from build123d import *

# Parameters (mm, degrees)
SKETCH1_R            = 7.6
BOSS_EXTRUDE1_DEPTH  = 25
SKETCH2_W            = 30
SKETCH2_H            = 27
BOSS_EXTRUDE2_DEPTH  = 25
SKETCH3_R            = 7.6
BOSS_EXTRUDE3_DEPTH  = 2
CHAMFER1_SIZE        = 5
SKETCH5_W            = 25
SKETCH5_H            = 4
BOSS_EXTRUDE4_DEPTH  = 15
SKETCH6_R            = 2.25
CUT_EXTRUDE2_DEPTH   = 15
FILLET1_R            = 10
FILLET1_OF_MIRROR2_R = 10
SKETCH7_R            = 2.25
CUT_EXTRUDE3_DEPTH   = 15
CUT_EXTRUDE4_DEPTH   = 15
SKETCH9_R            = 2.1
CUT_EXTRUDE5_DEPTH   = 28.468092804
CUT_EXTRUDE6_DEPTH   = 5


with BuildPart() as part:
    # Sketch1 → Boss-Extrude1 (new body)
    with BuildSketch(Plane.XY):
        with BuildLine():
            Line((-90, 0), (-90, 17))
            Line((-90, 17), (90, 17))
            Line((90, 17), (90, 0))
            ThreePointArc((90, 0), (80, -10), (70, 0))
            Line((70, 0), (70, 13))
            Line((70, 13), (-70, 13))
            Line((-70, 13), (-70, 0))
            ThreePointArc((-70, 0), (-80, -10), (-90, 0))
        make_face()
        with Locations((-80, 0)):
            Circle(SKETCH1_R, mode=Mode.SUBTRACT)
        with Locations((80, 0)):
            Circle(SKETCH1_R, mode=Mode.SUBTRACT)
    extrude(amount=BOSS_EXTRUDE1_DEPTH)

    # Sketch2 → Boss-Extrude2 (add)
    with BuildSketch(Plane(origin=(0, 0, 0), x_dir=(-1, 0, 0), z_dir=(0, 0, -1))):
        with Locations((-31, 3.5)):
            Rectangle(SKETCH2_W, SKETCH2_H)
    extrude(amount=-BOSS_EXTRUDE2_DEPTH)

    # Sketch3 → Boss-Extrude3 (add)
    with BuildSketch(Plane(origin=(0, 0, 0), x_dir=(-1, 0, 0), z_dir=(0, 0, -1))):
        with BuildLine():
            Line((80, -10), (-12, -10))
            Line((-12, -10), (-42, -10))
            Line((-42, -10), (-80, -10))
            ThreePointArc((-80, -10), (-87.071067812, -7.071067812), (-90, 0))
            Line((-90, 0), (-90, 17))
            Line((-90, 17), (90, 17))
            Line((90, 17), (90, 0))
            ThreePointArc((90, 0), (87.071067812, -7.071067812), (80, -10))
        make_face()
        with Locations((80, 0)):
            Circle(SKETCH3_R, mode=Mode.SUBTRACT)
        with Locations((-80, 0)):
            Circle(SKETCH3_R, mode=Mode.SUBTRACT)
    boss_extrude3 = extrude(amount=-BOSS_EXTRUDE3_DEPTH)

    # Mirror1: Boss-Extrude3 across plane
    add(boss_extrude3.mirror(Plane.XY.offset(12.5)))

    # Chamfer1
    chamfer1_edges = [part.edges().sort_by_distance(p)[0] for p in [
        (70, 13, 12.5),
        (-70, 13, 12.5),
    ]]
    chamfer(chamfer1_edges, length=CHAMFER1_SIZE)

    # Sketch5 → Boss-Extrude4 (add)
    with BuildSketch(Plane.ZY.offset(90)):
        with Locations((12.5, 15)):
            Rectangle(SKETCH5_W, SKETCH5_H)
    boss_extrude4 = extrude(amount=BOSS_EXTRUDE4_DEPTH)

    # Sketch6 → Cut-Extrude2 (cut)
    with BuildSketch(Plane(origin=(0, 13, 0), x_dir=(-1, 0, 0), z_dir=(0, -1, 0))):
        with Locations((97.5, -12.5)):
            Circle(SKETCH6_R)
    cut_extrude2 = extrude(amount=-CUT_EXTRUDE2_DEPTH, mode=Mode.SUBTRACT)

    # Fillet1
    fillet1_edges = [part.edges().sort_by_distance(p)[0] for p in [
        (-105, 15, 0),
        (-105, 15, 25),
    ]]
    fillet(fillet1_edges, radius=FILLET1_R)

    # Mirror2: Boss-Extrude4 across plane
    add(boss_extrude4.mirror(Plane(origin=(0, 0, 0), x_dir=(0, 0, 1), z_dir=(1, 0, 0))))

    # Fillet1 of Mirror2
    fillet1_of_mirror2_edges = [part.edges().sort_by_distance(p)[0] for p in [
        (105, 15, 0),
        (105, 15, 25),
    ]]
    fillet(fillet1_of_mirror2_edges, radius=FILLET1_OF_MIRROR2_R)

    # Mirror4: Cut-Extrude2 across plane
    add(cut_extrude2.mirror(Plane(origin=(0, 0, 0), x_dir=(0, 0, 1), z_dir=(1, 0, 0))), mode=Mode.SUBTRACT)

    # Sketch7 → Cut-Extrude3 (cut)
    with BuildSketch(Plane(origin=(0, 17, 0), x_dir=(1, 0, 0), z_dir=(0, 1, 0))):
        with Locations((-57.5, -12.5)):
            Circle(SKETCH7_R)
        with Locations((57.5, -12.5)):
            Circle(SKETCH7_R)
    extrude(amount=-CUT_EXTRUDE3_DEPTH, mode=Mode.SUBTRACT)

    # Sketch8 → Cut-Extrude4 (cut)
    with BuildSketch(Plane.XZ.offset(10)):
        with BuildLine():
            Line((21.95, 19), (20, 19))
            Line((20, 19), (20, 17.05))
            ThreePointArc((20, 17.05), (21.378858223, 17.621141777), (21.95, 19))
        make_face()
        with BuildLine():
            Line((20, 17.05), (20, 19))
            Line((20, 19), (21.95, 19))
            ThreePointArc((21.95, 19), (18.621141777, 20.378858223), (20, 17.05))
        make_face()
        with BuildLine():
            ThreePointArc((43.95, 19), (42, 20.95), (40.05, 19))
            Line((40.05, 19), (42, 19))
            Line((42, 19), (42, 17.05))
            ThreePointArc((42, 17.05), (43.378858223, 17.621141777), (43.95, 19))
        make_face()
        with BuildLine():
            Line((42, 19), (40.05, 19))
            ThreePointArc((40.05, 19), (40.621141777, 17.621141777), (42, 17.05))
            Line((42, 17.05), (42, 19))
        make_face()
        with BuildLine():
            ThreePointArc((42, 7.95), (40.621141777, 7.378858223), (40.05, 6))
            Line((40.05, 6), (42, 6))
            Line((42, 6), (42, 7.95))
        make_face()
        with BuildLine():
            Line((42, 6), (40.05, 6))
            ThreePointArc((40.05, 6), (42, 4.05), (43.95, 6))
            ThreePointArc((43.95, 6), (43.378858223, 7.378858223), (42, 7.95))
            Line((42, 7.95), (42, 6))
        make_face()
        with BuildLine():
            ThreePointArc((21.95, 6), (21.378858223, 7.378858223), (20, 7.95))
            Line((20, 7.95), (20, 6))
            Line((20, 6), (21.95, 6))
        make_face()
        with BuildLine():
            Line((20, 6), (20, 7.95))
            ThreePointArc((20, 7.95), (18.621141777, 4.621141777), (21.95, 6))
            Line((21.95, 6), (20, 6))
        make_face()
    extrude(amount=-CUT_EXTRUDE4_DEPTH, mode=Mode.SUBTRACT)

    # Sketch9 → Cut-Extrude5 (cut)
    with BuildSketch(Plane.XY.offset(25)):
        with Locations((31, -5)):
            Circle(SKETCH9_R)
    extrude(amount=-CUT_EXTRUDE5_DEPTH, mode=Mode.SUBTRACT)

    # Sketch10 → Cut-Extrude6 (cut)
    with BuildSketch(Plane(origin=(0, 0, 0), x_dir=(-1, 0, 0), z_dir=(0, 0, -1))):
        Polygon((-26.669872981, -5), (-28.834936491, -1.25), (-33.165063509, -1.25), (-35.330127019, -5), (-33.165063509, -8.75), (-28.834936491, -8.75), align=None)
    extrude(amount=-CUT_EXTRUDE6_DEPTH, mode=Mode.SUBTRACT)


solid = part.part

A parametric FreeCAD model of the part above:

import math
import FreeCAD as App
import Part
import Sketcher
from FreeCAD import Vector
Q = App.Units.Quantity


def edges_at(feature, points):
    """Names of the edges that pass closest to the given points."""
    edges = feature.Shape.Edges
    near = lambda p: min(range(len(edges)), key=lambda i: edges[i].distToShape(Part.Vertex(*p))[0])
    return sorted({f"Edge{near(p) + 1}" for p in points})

doc = App.newDocument("Part")
body = doc.addObject("PartDesign::Body", "Body")

sketch1 = body.newObject("Sketcher::SketchObject", "Sketch")
sketch1.AttachmentSupport = (doc.getObject("XY_Plane"), [""])
sketch1.MapMode = "FlatFace"
sketch1.addGeometry(Part.LineSegment(Vector(-90, 17, 0), Vector(-90, 0, 0)), False)
sketch1.addGeometry(Part.ArcOfCircle(Part.Circle(Vector(-80, 0, 0), Vector(0, 0, 1), 10), math.radians(180), math.radians(360)), False)
sketch1.addGeometry(Part.LineSegment(Vector(-70, 0, 0), Vector(-70, 13, 0)), False)
sketch1.addGeometry(Part.LineSegment(Vector(-70, 13, 0), Vector(70, 13, 0)), False)
sketch1.addGeometry(Part.LineSegment(Vector(70, 13, 0), Vector(70, 0, 0)), False)
sketch1.addGeometry(Part.ArcOfCircle(Part.Circle(Vector(80, 0, 0), Vector(0, 0, 1), 10), math.radians(180), math.radians(360)), False)
sketch1.addGeometry(Part.LineSegment(Vector(90, 0, 0), Vector(90, 17, 0)), False)
sketch1.addGeometry(Part.LineSegment(Vector(90, 17, 0), Vector(-90, 17, 0)), False)
sketch1.addGeometry(Part.Circle(Vector(80, 0, 0), Vector(0, 0, 1), 8), False)
sketch1.addGeometry(Part.Circle(Vector(-80, 0, 0), Vector(0, 0, 1), 8), False)
sketch1.addConstraint(Sketcher.Constraint("Tangent", 0, 2, 1, 1))
sketch1.addConstraint(Sketcher.Constraint("Tangent", 1, 2, 2, 1))
sketch1.addConstraint(Sketcher.Constraint("Coincident", 2, 2, 3, 1))
sketch1.addConstraint(Sketcher.Constraint("Coincident", 3, 2, 4, 1))
sketch1.addConstraint(Sketcher.Constraint("Tangent", 4, 2, 5, 1))
sketch1.addConstraint(Sketcher.Constraint("Tangent", 5, 2, 6, 1))
sketch1.addConstraint(Sketcher.Constraint("Coincident", 6, 2, 7, 1))
sketch1.addConstraint(Sketcher.Constraint("Coincident", 7, 2, 0, 1))
sketch1.addConstraint(Sketcher.Constraint("Vertical", 0))
sketch1.addConstraint(Sketcher.Constraint("Vertical", 2))
sketch1.addConstraint(Sketcher.Constraint("Horizontal", 3))
sketch1.addConstraint(Sketcher.Constraint("Vertical", 4))
sketch1.addConstraint(Sketcher.Constraint("Vertical", 6))
sketch1.addConstraint(Sketcher.Constraint("Horizontal", 7))
sketch1.addConstraint(Sketcher.Constraint("Coincident", 8, 3, 5, 3))
sketch1.addConstraint(Sketcher.Constraint("Coincident", 9, 3, 1, 3))
sketch1.addConstraint(Sketcher.Constraint("Equal", 1, 5))
sketch1.addConstraint(Sketcher.Constraint("Equal", 8, 9))
sketch1.addConstraint(Sketcher.Constraint("Symmetric", 1, 3, 5, 3, -1, 1))
sketch1.addConstraint(Sketcher.Constraint("PointOnObject", 1, 3, -1))
sketch1.addConstraint(Sketcher.Constraint("Radius", 1, Q("10 mm")))
sketch1.addConstraint(Sketcher.Constraint("Diameter", 8, Q("15.2 mm")))
sketch1.addConstraint(Sketcher.Constraint("DistanceX", 3, 1, 3, 2, Q("140 mm")))
sketch1.addConstraint(Sketcher.Constraint("DistanceY", 0, 2, 0, 1, Q("17 mm")))
sketch1.addConstraint(Sketcher.Constraint("DistanceY", 2, 1, 2, 2, Q("13 mm")))
pad1 = body.newObject("PartDesign::Pad", "Pad")
pad1.Profile = sketch1
pad1.Length = 25

sketch2 = body.newObject("Sketcher::SketchObject", "Sketch001")
sketch2.AttachmentSupport = (doc.getObject("XY_Plane"), [""])
sketch2.MapMode = "FlatFace"
sketch2.addGeometry(Part.LineSegment(Vector(46, 17, 0), Vector(46, -10, 0)), False)
sketch2.addGeometry(Part.LineSegment(Vector(46, -10, 0), Vector(16, -10, 0)), False)
sketch2.addGeometry(Part.LineSegment(Vector(16, -10, 0), Vector(16, 17, 0)), False)
sketch2.addGeometry(Part.LineSegment(Vector(16, 17, 0), Vector(46, 17, 0)), False)
sketch2.addConstraint(Sketcher.Constraint("Coincident", 0, 2, 1, 1))
sketch2.addConstraint(Sketcher.Constraint("Coincident", 1, 2, 2, 1))
sketch2.addConstraint(Sketcher.Constraint("Coincident", 2, 2, 3, 1))
sketch2.addConstraint(Sketcher.Constraint("Coincident", 3, 2, 0, 1))
sketch2.addConstraint(Sketcher.Constraint("Vertical", 0))
sketch2.addConstraint(Sketcher.Constraint("Horizontal", 1))
sketch2.addConstraint(Sketcher.Constraint("Vertical", 2))
sketch2.addConstraint(Sketcher.Constraint("Horizontal", 3))
sketch2.addConstraint(Sketcher.Constraint("DistanceX", 1, 2, 1, 1, Q("30 mm")))
sketch2.addConstraint(Sketcher.Constraint("DistanceY", 0, 2, 0, 1, Q("27 mm")))
sketch2.addConstraint(Sketcher.Constraint("DistanceX", -1, 1, 0, 2, Q("46 mm")))
sketch2.addConstraint(Sketcher.Constraint("DistanceY", 0, 2, -1, 1, Q("10 mm")))
pad2 = body.newObject("PartDesign::Pad", "Pad001")
pad2.Profile = sketch2
pad2.Length = 25

sketch3 = body.newObject("Sketcher::SketchObject", "Sketch002")
sketch3.AttachmentSupport = (doc.getObject("XY_Plane"), [""])
sketch3.MapMode = "FlatFace"
sketch3.addGeometry(Part.LineSegment(Vector(80, -10, 0), Vector(-80, -10, 0)), False)
sketch3.addGeometry(Part.ArcOfCircle(Part.Circle(Vector(-80, 0, 0), Vector(0, 0, 1), 10), math.radians(180), math.radians(270)), False)
sketch3.addGeometry(Part.LineSegment(Vector(-90, 0, 0), Vector(-90, 17, 0)), False)
sketch3.addGeometry(Part.LineSegment(Vector(-90, 17, 0), Vector(90, 17, 0)), False)
sketch3.addGeometry(Part.LineSegment(Vector(90, 17, 0), Vector(90, 0, 0)), False)
sketch3.addGeometry(Part.ArcOfCircle(Part.Circle(Vector(80, 0, 0), Vector(0, 0, 1), 10), math.radians(-90), math.radians(0)), False)
sketch3.addGeometry(Part.Circle(Vector(-80, 0, 0), Vector(0, 0, 1), 8), False)
sketch3.addGeometry(Part.Circle(Vector(80, 0, 0), Vector(0, 0, 1), 8), False)
sketch3.addConstraint(Sketcher.Constraint("Tangent", 0, 2, 1, 2))
sketch3.addConstraint(Sketcher.Constraint("Tangent", 1, 1, 2, 1))
sketch3.addConstraint(Sketcher.Constraint("Coincident", 2, 2, 3, 1))
sketch3.addConstraint(Sketcher.Constraint("Coincident", 3, 2, 4, 1))
sketch3.addConstraint(Sketcher.Constraint("Tangent", 4, 2, 5, 2))
sketch3.addConstraint(Sketcher.Constraint("Tangent", 5, 1, 0, 1))
sketch3.addConstraint(Sketcher.Constraint("Horizontal", 0))
sketch3.addConstraint(Sketcher.Constraint("Vertical", 2))
sketch3.addConstraint(Sketcher.Constraint("Horizontal", 3))
sketch3.addConstraint(Sketcher.Constraint("Vertical", 4))
sketch3.addConstraint(Sketcher.Constraint("Coincident", 6, 3, 1, 3))
sketch3.addConstraint(Sketcher.Constraint("Coincident", 7, 3, 5, 3))
sketch3.addConstraint(Sketcher.Constraint("Equal", 1, 5))
sketch3.addConstraint(Sketcher.Constraint("Equal", 6, 7))
sketch3.addConstraint(Sketcher.Constraint("Symmetric", 1, 3, 5, 3, -1, 1))
sketch3.addConstraint(Sketcher.Constraint("Radius", 1, Q("10 mm")))
sketch3.addConstraint(Sketcher.Constraint("Diameter", 6, Q("15.2 mm")))
sketch3.addConstraint(Sketcher.Constraint("DistanceX", 0, 2, 0, 1, Q("160 mm")))
sketch3.addConstraint(Sketcher.Constraint("DistanceY", 2, 1, 2, 2, Q("17 mm")))
pad3 = body.newObject("PartDesign::Pad", "Pad002")
pad3.Profile = sketch3
pad3.Length = 2
doc.recompute()

datumplane = body.newObject("PartDesign::Plane", "DatumPlane")
datumplane.AttachmentSupport = (doc.getObject("XY_Plane"), [""])
datumplane.MapMode = "FlatFace"
datumplane.AttachmentOffset = App.Placement(Vector(0, 0, 12.5), App.Rotation())
mirrored = body.newObject("PartDesign::Mirrored", "Mirrored")
mirrored.Originals = [pad3]
mirrored.MirrorPlane = (datumplane, [""])
body.Tip = mirrored
doc.recompute()

chamfer = body.newObject("PartDesign::Chamfer", "Chamfer")
chamfer.Base = (mirrored, edges_at(mirrored, [(70, 13, 12.5), (-70, 13, 12.5)]))
chamfer.Size = 5

sketch4 = body.newObject("Sketcher::SketchObject", "Sketch003")
sketch4.AttachmentSupport = (doc.getObject("YZ_Plane"), [""])
sketch4.MapMode = "FlatFace"
sketch4.AttachmentOffset = App.Placement(Vector(0, 0, -90), App.Rotation())
sketch4.addGeometry(Part.LineSegment(Vector(17, 0, 0), Vector(13, 0, 0)), False)
sketch4.addGeometry(Part.LineSegment(Vector(13, 0, 0), Vector(13, 25, 0)), False)
sketch4.addGeometry(Part.LineSegment(Vector(13, 25, 0), Vector(17, 25, 0)), False)
sketch4.addGeometry(Part.LineSegment(Vector(17, 25, 0), Vector(17, 0, 0)), False)
sketch4.addConstraint(Sketcher.Constraint("Coincident", 0, 2, 1, 1))
sketch4.addConstraint(Sketcher.Constraint("Coincident", 1, 2, 2, 1))
sketch4.addConstraint(Sketcher.Constraint("Coincident", 2, 2, 3, 1))
sketch4.addConstraint(Sketcher.Constraint("Coincident", 3, 2, 0, 1))
sketch4.addConstraint(Sketcher.Constraint("Horizontal", 0))
sketch4.addConstraint(Sketcher.Constraint("Vertical", 1))
sketch4.addConstraint(Sketcher.Constraint("Horizontal", 2))
sketch4.addConstraint(Sketcher.Constraint("Vertical", 3))
sketch4.addConstraint(Sketcher.Constraint("PointOnObject", 0, 2, -1))
sketch4.addConstraint(Sketcher.Constraint("DistanceX", 0, 2, 0, 1, Q("4 mm")))
sketch4.addConstraint(Sketcher.Constraint("DistanceY", 1, 1, 1, 2, Q("25 mm")))
sketch4.addConstraint(Sketcher.Constraint("DistanceX", -1, 1, 0, 2, Q("13 mm")))
pad4 = body.newObject("PartDesign::Pad", "Pad003")
pad4.Profile = sketch4
pad4.Length = 15
pad4.Reversed = True

sketch5 = body.newObject("Sketcher::SketchObject", "Sketch004")
sketch5.AttachmentSupport = (doc.getObject("XZ_Plane"), [""])
sketch5.MapMode = "FlatFace"
sketch5.AttachmentOffset = App.Placement(Vector(0, 0, -13), App.Rotation())
sketch5.addGeometry(Part.Circle(Vector(-97.5, 12.5, 0), Vector(0, 0, 1), 2.2), False)
sketch5.addConstraint(Sketcher.Constraint("Diameter", 0, Q("4.5 mm")))
sketch5.addConstraint(Sketcher.Constraint("DistanceX", 0, 3, -1, 1, Q("97.5 mm")))
sketch5.addConstraint(Sketcher.Constraint("DistanceY", -1, 1, 0, 3, Q("12.5 mm")))
pocket1 = body.newObject("PartDesign::Pocket", "Pocket")
pocket1.Profile = sketch5
pocket1.Length = 15
doc.recompute()

fillet = body.newObject("PartDesign::Fillet", "Fillet")
fillet.Base = (pocket1, edges_at(pocket1, [(-105, 15, 0), (-105, 15, 25)]))
fillet.Radius = 10
doc.recompute()

mirrored2 = body.newObject("PartDesign::Mirrored", "Mirrored001")
mirrored2.Originals = [pad4]
mirrored2.MirrorPlane = (doc.getObject("YZ_Plane"), [""])
body.Tip = mirrored2
doc.recompute()

fillet2 = body.newObject("PartDesign::Fillet", "Fillet001")
fillet2.Base = (mirrored2, edges_at(mirrored2, [(105, 15, 0), (105, 15, 25)]))
fillet2.Radius = 10
doc.recompute()

mirrored3 = body.newObject("PartDesign::Mirrored", "Mirrored002")
mirrored3.Originals = [pocket1]
mirrored3.MirrorPlane = (doc.getObject("YZ_Plane"), [""])
body.Tip = mirrored3

sketch6 = body.newObject("Sketcher::SketchObject", "Sketch005")
sketch6.AttachmentSupport = (doc.getObject("XZ_Plane"), [""])
sketch6.MapMode = "FlatFace"
sketch6.AttachmentOffset = App.Placement(Vector(0, 0, -17), App.Rotation())
sketch6.addGeometry(Part.Circle(Vector(-57.5, 12.5, 0), Vector(0, 0, 1), 2.2), False)
sketch6.addGeometry(Part.Circle(Vector(57.5, 12.5, 0), Vector(0, 0, 1), 2.2), False)
sketch6.addConstraint(Sketcher.Constraint("Equal", 0, 1))
sketch6.addConstraint(Sketcher.Constraint("Symmetric", 0, 3, 1, 3, -2))
sketch6.addConstraint(Sketcher.Constraint("Diameter", 0, Q("4.5 mm")))
sketch6.addConstraint(Sketcher.Constraint("DistanceX", 0, 3, 1, 3, Q("115 mm")))
sketch6.addConstraint(Sketcher.Constraint("DistanceY", -1, 1, 0, 3, Q("12.5 mm")))
pocket2 = body.newObject("PartDesign::Pocket", "Pocket001")
pocket2.Profile = sketch6
pocket2.Length = 15
pocket2.Reversed = True

sketch7 = body.newObject("Sketcher::SketchObject", "Sketch006")
sketch7.AttachmentSupport = (doc.getObject("XZ_Plane"), [""])
sketch7.MapMode = "FlatFace"
sketch7.AttachmentOffset = App.Placement(Vector(0, 0, 10), App.Rotation())
sketch7.addGeometry(Part.ArcOfCircle(Part.Circle(Vector(20, 19, 0), Vector(0, 0, 1), 2), math.radians(-90), math.radians(0)), False)
sketch7.addGeometry(Part.ArcOfCircle(Part.Circle(Vector(20, 19, 0), Vector(0, 0, 1), 1.9), math.radians(0), math.radians(270)), False)
sketch7.addGeometry(Part.ArcOfCircle(Part.Circle(Vector(42, 19, 0), Vector(0, 0, 1), 1.9), math.radians(0), math.radians(180)), False)
sketch7.addGeometry(Part.ArcOfCircle(Part.Circle(Vector(42, 19, 0), Vector(0, 0, 1), 2), math.radians(-180), math.radians(-90)), False)
sketch7.addGeometry(Part.ArcOfCircle(Part.Circle(Vector(42, 19, 0), Vector(0, 0, 1), 2), math.radians(-90), math.radians(0)), False)
sketch7.addGeometry(Part.ArcOfCircle(Part.Circle(Vector(42, 6, 0), Vector(0, 0, 1), 2), math.radians(90), math.radians(180)), False)
sketch7.addGeometry(Part.ArcOfCircle(Part.Circle(Vector(42, 6, 0), Vector(0, 0, 1), 1.9), math.radians(180), math.radians(360)), False)
sketch7.addGeometry(Part.ArcOfCircle(Part.Circle(Vector(42, 6, 0), Vector(0, 0, 1), 2), math.radians(0), math.radians(90)), False)
sketch7.addGeometry(Part.ArcOfCircle(Part.Circle(Vector(20, 6, 0), Vector(0, 0, 1), 2), math.radians(0), math.radians(90)), False)
sketch7.addGeometry(Part.ArcOfCircle(Part.Circle(Vector(20, 6, 0), Vector(0, 0, 1), 1.9), math.radians(90), math.radians(360)), False)
sketch7.addConstraint(Sketcher.Constraint("Tangent", 0, 1, 1, 2))
sketch7.addConstraint(Sketcher.Constraint("Coincident", 1, 1, 0, 2))
sketch7.addConstraint(Sketcher.Constraint("Tangent", 2, 2, 3, 1))
sketch7.addConstraint(Sketcher.Constraint("Tangent", 3, 2, 4, 1))
sketch7.addConstraint(Sketcher.Constraint("Tangent", 4, 2, 2, 1))
sketch7.addConstraint(Sketcher.Constraint("Tangent", 5, 2, 6, 1))
sketch7.addConstraint(Sketcher.Constraint("Tangent", 6, 2, 7, 1))
sketch7.addConstraint(Sketcher.Constraint("Tangent", 7, 2, 5, 1))
sketch7.addConstraint(Sketcher.Constraint("Tangent", 8, 1, 9, 2))
sketch7.addConstraint(Sketcher.Constraint("Coincident", 9, 1, 8, 2))
sketch7.addConstraint(Sketcher.Constraint("Equal", 1, 2))
sketch7.addConstraint(Sketcher.Constraint("Equal", 4, 5))
sketch7.addConstraint(Sketcher.Constraint("Equal", 7, 8))
sketch7.addConstraint(Sketcher.Constraint("Horizontal", 1, 3, 2, 3))
sketch7.addConstraint(Sketcher.Constraint("Horizontal", 7, 3, 8, 3))
sketch7.addConstraint(Sketcher.Constraint("Horizontal", 4, 3, 1, 1))
sketch7.addConstraint(Sketcher.Constraint("Horizontal", 1, 1, 2, 2))
sketch7.addConstraint(Sketcher.Constraint("Horizontal", 2, 2, 4, 2))
sketch7.addConstraint(Sketcher.Constraint("Horizontal", 9, 3, 5, 2))
sketch7.addConstraint(Sketcher.Constraint("Horizontal", 5, 2, 6, 2))
sketch7.addConstraint(Sketcher.Constraint("Horizontal", 6, 2, 8, 1))
sketch7.addConstraint(Sketcher.Constraint("Vertical", 4, 3, 5, 3))
sketch7.addConstraint(Sketcher.Constraint("Vertical", 1, 3, 8, 3))
sketch7.addConstraint(Sketcher.Constraint("Vertical", 9, 3, 0, 1))
sketch7.addConstraint(Sketcher.Constraint("Vertical", 7, 3, 3, 2))
sketch7.addConstraint(Sketcher.Constraint("Vertical", 3, 2, 7, 2))
sketch7.addConstraint(Sketcher.Constraint("Vertical", 0, 1, 9, 1))
sketch7.addConstraint(Sketcher.Constraint("Radius", 0, Q("1.95 mm")))
sketch7.addConstraint(Sketcher.Constraint("DistanceX", -1, 1, 0, 3, Q("20 mm")))
sketch7.addConstraint(Sketcher.Constraint("DistanceY", -1, 1, 0, 3, Q("19 mm")))
sketch7.addConstraint(Sketcher.Constraint("DistanceX", -1, 1, 2, 3, Q("42 mm")))
sketch7.addConstraint(Sketcher.Constraint("DistanceY", -1, 1, 5, 3, Q("6 mm")))
pocket3 = body.newObject("PartDesign::Pocket", "Pocket002")
pocket3.Profile = sketch7
pocket3.Length = 15

sketch8 = body.newObject("Sketcher::SketchObject", "Sketch007")
sketch8.AttachmentSupport = (doc.getObject("XY_Plane"), [""])
sketch8.MapMode = "FlatFace"
sketch8.AttachmentOffset = App.Placement(Vector(0, 0, 25), App.Rotation())
sketch8.addGeometry(Part.Circle(Vector(31, -5, 0), Vector(0, 0, 1), 2.1), False)
sketch8.addConstraint(Sketcher.Constraint("Diameter", 0, Q("4.2 mm")))
sketch8.addConstraint(Sketcher.Constraint("DistanceX", -1, 1, 0, 3, Q("31 mm")))
sketch8.addConstraint(Sketcher.Constraint("DistanceY", 0, 3, -1, 1, Q("5 mm")))
pocket4 = body.newObject("PartDesign::Pocket", "Pocket003")
pocket4.Profile = sketch8
pocket4.Length = 28.468093

sketch9 = body.newObject("Sketcher::SketchObject", "Sketch008")
sketch9.AttachmentSupport = (doc.getObject("XY_Plane"), [""])
sketch9.MapMode = "FlatFace"
sketch9.addGeometry(Part.LineSegment(Vector(26.7, -5, 0), Vector(28.8, -1.2, 0)), False)
sketch9.addGeometry(Part.LineSegment(Vector(28.8, -1.2, 0), Vector(33.2, -1.2, 0)), False)
sketch9.addGeometry(Part.LineSegment(Vector(33.2, -1.2, 0), Vector(35.3, -5, 0)), False)
sketch9.addGeometry(Part.LineSegment(Vector(35.3, -5, 0), Vector(33.2, -8.8, 0)), False)
sketch9.addGeometry(Part.LineSegment(Vector(33.2, -8.8, 0), Vector(28.8, -8.8, 0)), False)
sketch9.addGeometry(Part.LineSegment(Vector(28.8, -8.8, 0), Vector(26.7, -5, 0)), False)
sketch9.addConstraint(Sketcher.Constraint("Coincident", 0, 2, 1, 1))
sketch9.addConstraint(Sketcher.Constraint("Coincident", 1, 2, 2, 1))
sketch9.addConstraint(Sketcher.Constraint("Coincident", 2, 2, 3, 1))
sketch9.addConstraint(Sketcher.Constraint("Coincident", 3, 2, 4, 1))
sketch9.addConstraint(Sketcher.Constraint("Coincident", 4, 2, 5, 1))
sketch9.addConstraint(Sketcher.Constraint("Coincident", 5, 2, 0, 1))
sketch9.addConstraint(Sketcher.Constraint("Horizontal", 1))
sketch9.addConstraint(Sketcher.Constraint("Horizontal", 4))
sketch9.addConstraint(Sketcher.Constraint("Parallel", 0, 3))
sketch9.addConstraint(Sketcher.Constraint("Parallel", 2, 5))
sketch9.addConstraint(Sketcher.Constraint("Horizontal", 2, 2, 5, 2))
sketch9.addConstraint(Sketcher.Constraint("Vertical", 1, 2, 3, 2))
sketch9.addConstraint(Sketcher.Constraint("Vertical", 0, 2, 4, 2))
sketch9.addConstraint(Sketcher.Constraint("Angle", 0, Q("60 deg")))
sketch9.addConstraint(Sketcher.Constraint("DistanceY", 2, 2, -1, 1, Q("5 mm")))
sketch9.addConstraint(Sketcher.Constraint("DistanceY", 3, 2, 1, 2, Q("7.5 mm")))
sketch9.addConstraint(Sketcher.Constraint("DistanceX", 1, 1, 1, 2, Q("4.330127 mm")))
sketch9.addConstraint(Sketcher.Constraint("DistanceX", -1, 1, 0, 2, Q("28.834936 mm")))
pocket5 = body.newObject("PartDesign::Pocket", "Pocket004")
pocket5.Profile = sketch9
pocket5.Length = 5
pocket5.Reversed = True

doc.recompute()
